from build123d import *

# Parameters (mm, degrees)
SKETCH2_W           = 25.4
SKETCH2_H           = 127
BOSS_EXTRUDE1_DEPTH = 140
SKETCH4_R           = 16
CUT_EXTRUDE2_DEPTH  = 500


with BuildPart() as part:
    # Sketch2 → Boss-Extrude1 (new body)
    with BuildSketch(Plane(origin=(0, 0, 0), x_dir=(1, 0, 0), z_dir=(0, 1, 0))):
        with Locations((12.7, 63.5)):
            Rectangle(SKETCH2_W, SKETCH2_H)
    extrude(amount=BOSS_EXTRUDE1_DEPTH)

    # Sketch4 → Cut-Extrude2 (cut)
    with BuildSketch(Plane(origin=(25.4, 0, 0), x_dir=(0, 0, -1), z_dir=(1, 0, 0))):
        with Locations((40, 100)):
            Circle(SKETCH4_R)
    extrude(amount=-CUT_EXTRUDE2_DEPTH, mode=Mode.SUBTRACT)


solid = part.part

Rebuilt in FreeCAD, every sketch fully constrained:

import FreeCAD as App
import Part
import Sketcher
from FreeCAD import Vector


def add_polygon(sketch, points):
    """Adds a closed chain of lines whose ends are joined by coincident constraints."""
    first, n = sketch.GeometryCount, len(points)
    for a, b in zip(points, points[1:] + points[:1]):
        sketch.addGeometry(Part.LineSegment(App.Vector(*a, 0), App.Vector(*b, 0)), False)
    for i in range(n):
        sketch.addConstraint(Sketcher.Constraint("Coincident", first + i, 2, first + (i + 1) % n, 1))

doc = App.newDocument("Part")
body = doc.addObject("PartDesign::Body", "Body")

sketch1 = body.newObject("Sketcher::SketchObject", "Sketch")
sketch1.AttachmentSupport = (doc.getObject("XZ_Plane"), [""])
sketch1.MapMode = "FlatFace"
add_polygon(sketch1, [(0, -127), (0, 0), (25, 0), (25, -127)])
sketch1.addConstraint([
    Sketcher.Constraint("Vertical", 0),
    Sketcher.Constraint("Horizontal", 1),
    Sketcher.Constraint("Vertical", 2),
    Sketcher.Constraint("Horizontal", 3),
    Sketcher.Constraint("Coincident", 0, 2, -1, 1),
    Sketcher.Constraint("DistanceY", 0, 1, 0, 2, 127.0),
    Sketcher.Constraint("DistanceX", 1, 1, 1, 2, 25.4),
])
pad1 = body.newObject("PartDesign::Pad", "Pad")
pad1.Profile = sketch1
pad1.Length = 140
pad1.Reversed = True

sketch2 = body.newObject("Sketcher::SketchObject", "Sketch001")
sketch2.AttachmentSupport = (doc.getObject("YZ_Plane"), [""])
sketch2.MapMode = "FlatFace"
sketch2.AttachmentOffset = App.Placement(Vector(0, 0, 25.4), App.Rotation())
sketch2.addGeometry(Part.Circle(Vector(100, -40, 0), Vector(0, 0, 1), 16), False)
sketch2.addConstraint([
    Sketcher.Constraint("Diameter", 0, 32.0),
    Sketcher.Constraint("DistanceX", -1, 1, 0, 3, 100.0),
    Sketcher.Constraint("DistanceY", 0, 3, -1, 1, 40.0),
])
pocket1 = body.newObject("PartDesign::Pocket", "Pocket")
pocket1.Profile = sketch2
pocket1.Length = 500

doc.recompute()
